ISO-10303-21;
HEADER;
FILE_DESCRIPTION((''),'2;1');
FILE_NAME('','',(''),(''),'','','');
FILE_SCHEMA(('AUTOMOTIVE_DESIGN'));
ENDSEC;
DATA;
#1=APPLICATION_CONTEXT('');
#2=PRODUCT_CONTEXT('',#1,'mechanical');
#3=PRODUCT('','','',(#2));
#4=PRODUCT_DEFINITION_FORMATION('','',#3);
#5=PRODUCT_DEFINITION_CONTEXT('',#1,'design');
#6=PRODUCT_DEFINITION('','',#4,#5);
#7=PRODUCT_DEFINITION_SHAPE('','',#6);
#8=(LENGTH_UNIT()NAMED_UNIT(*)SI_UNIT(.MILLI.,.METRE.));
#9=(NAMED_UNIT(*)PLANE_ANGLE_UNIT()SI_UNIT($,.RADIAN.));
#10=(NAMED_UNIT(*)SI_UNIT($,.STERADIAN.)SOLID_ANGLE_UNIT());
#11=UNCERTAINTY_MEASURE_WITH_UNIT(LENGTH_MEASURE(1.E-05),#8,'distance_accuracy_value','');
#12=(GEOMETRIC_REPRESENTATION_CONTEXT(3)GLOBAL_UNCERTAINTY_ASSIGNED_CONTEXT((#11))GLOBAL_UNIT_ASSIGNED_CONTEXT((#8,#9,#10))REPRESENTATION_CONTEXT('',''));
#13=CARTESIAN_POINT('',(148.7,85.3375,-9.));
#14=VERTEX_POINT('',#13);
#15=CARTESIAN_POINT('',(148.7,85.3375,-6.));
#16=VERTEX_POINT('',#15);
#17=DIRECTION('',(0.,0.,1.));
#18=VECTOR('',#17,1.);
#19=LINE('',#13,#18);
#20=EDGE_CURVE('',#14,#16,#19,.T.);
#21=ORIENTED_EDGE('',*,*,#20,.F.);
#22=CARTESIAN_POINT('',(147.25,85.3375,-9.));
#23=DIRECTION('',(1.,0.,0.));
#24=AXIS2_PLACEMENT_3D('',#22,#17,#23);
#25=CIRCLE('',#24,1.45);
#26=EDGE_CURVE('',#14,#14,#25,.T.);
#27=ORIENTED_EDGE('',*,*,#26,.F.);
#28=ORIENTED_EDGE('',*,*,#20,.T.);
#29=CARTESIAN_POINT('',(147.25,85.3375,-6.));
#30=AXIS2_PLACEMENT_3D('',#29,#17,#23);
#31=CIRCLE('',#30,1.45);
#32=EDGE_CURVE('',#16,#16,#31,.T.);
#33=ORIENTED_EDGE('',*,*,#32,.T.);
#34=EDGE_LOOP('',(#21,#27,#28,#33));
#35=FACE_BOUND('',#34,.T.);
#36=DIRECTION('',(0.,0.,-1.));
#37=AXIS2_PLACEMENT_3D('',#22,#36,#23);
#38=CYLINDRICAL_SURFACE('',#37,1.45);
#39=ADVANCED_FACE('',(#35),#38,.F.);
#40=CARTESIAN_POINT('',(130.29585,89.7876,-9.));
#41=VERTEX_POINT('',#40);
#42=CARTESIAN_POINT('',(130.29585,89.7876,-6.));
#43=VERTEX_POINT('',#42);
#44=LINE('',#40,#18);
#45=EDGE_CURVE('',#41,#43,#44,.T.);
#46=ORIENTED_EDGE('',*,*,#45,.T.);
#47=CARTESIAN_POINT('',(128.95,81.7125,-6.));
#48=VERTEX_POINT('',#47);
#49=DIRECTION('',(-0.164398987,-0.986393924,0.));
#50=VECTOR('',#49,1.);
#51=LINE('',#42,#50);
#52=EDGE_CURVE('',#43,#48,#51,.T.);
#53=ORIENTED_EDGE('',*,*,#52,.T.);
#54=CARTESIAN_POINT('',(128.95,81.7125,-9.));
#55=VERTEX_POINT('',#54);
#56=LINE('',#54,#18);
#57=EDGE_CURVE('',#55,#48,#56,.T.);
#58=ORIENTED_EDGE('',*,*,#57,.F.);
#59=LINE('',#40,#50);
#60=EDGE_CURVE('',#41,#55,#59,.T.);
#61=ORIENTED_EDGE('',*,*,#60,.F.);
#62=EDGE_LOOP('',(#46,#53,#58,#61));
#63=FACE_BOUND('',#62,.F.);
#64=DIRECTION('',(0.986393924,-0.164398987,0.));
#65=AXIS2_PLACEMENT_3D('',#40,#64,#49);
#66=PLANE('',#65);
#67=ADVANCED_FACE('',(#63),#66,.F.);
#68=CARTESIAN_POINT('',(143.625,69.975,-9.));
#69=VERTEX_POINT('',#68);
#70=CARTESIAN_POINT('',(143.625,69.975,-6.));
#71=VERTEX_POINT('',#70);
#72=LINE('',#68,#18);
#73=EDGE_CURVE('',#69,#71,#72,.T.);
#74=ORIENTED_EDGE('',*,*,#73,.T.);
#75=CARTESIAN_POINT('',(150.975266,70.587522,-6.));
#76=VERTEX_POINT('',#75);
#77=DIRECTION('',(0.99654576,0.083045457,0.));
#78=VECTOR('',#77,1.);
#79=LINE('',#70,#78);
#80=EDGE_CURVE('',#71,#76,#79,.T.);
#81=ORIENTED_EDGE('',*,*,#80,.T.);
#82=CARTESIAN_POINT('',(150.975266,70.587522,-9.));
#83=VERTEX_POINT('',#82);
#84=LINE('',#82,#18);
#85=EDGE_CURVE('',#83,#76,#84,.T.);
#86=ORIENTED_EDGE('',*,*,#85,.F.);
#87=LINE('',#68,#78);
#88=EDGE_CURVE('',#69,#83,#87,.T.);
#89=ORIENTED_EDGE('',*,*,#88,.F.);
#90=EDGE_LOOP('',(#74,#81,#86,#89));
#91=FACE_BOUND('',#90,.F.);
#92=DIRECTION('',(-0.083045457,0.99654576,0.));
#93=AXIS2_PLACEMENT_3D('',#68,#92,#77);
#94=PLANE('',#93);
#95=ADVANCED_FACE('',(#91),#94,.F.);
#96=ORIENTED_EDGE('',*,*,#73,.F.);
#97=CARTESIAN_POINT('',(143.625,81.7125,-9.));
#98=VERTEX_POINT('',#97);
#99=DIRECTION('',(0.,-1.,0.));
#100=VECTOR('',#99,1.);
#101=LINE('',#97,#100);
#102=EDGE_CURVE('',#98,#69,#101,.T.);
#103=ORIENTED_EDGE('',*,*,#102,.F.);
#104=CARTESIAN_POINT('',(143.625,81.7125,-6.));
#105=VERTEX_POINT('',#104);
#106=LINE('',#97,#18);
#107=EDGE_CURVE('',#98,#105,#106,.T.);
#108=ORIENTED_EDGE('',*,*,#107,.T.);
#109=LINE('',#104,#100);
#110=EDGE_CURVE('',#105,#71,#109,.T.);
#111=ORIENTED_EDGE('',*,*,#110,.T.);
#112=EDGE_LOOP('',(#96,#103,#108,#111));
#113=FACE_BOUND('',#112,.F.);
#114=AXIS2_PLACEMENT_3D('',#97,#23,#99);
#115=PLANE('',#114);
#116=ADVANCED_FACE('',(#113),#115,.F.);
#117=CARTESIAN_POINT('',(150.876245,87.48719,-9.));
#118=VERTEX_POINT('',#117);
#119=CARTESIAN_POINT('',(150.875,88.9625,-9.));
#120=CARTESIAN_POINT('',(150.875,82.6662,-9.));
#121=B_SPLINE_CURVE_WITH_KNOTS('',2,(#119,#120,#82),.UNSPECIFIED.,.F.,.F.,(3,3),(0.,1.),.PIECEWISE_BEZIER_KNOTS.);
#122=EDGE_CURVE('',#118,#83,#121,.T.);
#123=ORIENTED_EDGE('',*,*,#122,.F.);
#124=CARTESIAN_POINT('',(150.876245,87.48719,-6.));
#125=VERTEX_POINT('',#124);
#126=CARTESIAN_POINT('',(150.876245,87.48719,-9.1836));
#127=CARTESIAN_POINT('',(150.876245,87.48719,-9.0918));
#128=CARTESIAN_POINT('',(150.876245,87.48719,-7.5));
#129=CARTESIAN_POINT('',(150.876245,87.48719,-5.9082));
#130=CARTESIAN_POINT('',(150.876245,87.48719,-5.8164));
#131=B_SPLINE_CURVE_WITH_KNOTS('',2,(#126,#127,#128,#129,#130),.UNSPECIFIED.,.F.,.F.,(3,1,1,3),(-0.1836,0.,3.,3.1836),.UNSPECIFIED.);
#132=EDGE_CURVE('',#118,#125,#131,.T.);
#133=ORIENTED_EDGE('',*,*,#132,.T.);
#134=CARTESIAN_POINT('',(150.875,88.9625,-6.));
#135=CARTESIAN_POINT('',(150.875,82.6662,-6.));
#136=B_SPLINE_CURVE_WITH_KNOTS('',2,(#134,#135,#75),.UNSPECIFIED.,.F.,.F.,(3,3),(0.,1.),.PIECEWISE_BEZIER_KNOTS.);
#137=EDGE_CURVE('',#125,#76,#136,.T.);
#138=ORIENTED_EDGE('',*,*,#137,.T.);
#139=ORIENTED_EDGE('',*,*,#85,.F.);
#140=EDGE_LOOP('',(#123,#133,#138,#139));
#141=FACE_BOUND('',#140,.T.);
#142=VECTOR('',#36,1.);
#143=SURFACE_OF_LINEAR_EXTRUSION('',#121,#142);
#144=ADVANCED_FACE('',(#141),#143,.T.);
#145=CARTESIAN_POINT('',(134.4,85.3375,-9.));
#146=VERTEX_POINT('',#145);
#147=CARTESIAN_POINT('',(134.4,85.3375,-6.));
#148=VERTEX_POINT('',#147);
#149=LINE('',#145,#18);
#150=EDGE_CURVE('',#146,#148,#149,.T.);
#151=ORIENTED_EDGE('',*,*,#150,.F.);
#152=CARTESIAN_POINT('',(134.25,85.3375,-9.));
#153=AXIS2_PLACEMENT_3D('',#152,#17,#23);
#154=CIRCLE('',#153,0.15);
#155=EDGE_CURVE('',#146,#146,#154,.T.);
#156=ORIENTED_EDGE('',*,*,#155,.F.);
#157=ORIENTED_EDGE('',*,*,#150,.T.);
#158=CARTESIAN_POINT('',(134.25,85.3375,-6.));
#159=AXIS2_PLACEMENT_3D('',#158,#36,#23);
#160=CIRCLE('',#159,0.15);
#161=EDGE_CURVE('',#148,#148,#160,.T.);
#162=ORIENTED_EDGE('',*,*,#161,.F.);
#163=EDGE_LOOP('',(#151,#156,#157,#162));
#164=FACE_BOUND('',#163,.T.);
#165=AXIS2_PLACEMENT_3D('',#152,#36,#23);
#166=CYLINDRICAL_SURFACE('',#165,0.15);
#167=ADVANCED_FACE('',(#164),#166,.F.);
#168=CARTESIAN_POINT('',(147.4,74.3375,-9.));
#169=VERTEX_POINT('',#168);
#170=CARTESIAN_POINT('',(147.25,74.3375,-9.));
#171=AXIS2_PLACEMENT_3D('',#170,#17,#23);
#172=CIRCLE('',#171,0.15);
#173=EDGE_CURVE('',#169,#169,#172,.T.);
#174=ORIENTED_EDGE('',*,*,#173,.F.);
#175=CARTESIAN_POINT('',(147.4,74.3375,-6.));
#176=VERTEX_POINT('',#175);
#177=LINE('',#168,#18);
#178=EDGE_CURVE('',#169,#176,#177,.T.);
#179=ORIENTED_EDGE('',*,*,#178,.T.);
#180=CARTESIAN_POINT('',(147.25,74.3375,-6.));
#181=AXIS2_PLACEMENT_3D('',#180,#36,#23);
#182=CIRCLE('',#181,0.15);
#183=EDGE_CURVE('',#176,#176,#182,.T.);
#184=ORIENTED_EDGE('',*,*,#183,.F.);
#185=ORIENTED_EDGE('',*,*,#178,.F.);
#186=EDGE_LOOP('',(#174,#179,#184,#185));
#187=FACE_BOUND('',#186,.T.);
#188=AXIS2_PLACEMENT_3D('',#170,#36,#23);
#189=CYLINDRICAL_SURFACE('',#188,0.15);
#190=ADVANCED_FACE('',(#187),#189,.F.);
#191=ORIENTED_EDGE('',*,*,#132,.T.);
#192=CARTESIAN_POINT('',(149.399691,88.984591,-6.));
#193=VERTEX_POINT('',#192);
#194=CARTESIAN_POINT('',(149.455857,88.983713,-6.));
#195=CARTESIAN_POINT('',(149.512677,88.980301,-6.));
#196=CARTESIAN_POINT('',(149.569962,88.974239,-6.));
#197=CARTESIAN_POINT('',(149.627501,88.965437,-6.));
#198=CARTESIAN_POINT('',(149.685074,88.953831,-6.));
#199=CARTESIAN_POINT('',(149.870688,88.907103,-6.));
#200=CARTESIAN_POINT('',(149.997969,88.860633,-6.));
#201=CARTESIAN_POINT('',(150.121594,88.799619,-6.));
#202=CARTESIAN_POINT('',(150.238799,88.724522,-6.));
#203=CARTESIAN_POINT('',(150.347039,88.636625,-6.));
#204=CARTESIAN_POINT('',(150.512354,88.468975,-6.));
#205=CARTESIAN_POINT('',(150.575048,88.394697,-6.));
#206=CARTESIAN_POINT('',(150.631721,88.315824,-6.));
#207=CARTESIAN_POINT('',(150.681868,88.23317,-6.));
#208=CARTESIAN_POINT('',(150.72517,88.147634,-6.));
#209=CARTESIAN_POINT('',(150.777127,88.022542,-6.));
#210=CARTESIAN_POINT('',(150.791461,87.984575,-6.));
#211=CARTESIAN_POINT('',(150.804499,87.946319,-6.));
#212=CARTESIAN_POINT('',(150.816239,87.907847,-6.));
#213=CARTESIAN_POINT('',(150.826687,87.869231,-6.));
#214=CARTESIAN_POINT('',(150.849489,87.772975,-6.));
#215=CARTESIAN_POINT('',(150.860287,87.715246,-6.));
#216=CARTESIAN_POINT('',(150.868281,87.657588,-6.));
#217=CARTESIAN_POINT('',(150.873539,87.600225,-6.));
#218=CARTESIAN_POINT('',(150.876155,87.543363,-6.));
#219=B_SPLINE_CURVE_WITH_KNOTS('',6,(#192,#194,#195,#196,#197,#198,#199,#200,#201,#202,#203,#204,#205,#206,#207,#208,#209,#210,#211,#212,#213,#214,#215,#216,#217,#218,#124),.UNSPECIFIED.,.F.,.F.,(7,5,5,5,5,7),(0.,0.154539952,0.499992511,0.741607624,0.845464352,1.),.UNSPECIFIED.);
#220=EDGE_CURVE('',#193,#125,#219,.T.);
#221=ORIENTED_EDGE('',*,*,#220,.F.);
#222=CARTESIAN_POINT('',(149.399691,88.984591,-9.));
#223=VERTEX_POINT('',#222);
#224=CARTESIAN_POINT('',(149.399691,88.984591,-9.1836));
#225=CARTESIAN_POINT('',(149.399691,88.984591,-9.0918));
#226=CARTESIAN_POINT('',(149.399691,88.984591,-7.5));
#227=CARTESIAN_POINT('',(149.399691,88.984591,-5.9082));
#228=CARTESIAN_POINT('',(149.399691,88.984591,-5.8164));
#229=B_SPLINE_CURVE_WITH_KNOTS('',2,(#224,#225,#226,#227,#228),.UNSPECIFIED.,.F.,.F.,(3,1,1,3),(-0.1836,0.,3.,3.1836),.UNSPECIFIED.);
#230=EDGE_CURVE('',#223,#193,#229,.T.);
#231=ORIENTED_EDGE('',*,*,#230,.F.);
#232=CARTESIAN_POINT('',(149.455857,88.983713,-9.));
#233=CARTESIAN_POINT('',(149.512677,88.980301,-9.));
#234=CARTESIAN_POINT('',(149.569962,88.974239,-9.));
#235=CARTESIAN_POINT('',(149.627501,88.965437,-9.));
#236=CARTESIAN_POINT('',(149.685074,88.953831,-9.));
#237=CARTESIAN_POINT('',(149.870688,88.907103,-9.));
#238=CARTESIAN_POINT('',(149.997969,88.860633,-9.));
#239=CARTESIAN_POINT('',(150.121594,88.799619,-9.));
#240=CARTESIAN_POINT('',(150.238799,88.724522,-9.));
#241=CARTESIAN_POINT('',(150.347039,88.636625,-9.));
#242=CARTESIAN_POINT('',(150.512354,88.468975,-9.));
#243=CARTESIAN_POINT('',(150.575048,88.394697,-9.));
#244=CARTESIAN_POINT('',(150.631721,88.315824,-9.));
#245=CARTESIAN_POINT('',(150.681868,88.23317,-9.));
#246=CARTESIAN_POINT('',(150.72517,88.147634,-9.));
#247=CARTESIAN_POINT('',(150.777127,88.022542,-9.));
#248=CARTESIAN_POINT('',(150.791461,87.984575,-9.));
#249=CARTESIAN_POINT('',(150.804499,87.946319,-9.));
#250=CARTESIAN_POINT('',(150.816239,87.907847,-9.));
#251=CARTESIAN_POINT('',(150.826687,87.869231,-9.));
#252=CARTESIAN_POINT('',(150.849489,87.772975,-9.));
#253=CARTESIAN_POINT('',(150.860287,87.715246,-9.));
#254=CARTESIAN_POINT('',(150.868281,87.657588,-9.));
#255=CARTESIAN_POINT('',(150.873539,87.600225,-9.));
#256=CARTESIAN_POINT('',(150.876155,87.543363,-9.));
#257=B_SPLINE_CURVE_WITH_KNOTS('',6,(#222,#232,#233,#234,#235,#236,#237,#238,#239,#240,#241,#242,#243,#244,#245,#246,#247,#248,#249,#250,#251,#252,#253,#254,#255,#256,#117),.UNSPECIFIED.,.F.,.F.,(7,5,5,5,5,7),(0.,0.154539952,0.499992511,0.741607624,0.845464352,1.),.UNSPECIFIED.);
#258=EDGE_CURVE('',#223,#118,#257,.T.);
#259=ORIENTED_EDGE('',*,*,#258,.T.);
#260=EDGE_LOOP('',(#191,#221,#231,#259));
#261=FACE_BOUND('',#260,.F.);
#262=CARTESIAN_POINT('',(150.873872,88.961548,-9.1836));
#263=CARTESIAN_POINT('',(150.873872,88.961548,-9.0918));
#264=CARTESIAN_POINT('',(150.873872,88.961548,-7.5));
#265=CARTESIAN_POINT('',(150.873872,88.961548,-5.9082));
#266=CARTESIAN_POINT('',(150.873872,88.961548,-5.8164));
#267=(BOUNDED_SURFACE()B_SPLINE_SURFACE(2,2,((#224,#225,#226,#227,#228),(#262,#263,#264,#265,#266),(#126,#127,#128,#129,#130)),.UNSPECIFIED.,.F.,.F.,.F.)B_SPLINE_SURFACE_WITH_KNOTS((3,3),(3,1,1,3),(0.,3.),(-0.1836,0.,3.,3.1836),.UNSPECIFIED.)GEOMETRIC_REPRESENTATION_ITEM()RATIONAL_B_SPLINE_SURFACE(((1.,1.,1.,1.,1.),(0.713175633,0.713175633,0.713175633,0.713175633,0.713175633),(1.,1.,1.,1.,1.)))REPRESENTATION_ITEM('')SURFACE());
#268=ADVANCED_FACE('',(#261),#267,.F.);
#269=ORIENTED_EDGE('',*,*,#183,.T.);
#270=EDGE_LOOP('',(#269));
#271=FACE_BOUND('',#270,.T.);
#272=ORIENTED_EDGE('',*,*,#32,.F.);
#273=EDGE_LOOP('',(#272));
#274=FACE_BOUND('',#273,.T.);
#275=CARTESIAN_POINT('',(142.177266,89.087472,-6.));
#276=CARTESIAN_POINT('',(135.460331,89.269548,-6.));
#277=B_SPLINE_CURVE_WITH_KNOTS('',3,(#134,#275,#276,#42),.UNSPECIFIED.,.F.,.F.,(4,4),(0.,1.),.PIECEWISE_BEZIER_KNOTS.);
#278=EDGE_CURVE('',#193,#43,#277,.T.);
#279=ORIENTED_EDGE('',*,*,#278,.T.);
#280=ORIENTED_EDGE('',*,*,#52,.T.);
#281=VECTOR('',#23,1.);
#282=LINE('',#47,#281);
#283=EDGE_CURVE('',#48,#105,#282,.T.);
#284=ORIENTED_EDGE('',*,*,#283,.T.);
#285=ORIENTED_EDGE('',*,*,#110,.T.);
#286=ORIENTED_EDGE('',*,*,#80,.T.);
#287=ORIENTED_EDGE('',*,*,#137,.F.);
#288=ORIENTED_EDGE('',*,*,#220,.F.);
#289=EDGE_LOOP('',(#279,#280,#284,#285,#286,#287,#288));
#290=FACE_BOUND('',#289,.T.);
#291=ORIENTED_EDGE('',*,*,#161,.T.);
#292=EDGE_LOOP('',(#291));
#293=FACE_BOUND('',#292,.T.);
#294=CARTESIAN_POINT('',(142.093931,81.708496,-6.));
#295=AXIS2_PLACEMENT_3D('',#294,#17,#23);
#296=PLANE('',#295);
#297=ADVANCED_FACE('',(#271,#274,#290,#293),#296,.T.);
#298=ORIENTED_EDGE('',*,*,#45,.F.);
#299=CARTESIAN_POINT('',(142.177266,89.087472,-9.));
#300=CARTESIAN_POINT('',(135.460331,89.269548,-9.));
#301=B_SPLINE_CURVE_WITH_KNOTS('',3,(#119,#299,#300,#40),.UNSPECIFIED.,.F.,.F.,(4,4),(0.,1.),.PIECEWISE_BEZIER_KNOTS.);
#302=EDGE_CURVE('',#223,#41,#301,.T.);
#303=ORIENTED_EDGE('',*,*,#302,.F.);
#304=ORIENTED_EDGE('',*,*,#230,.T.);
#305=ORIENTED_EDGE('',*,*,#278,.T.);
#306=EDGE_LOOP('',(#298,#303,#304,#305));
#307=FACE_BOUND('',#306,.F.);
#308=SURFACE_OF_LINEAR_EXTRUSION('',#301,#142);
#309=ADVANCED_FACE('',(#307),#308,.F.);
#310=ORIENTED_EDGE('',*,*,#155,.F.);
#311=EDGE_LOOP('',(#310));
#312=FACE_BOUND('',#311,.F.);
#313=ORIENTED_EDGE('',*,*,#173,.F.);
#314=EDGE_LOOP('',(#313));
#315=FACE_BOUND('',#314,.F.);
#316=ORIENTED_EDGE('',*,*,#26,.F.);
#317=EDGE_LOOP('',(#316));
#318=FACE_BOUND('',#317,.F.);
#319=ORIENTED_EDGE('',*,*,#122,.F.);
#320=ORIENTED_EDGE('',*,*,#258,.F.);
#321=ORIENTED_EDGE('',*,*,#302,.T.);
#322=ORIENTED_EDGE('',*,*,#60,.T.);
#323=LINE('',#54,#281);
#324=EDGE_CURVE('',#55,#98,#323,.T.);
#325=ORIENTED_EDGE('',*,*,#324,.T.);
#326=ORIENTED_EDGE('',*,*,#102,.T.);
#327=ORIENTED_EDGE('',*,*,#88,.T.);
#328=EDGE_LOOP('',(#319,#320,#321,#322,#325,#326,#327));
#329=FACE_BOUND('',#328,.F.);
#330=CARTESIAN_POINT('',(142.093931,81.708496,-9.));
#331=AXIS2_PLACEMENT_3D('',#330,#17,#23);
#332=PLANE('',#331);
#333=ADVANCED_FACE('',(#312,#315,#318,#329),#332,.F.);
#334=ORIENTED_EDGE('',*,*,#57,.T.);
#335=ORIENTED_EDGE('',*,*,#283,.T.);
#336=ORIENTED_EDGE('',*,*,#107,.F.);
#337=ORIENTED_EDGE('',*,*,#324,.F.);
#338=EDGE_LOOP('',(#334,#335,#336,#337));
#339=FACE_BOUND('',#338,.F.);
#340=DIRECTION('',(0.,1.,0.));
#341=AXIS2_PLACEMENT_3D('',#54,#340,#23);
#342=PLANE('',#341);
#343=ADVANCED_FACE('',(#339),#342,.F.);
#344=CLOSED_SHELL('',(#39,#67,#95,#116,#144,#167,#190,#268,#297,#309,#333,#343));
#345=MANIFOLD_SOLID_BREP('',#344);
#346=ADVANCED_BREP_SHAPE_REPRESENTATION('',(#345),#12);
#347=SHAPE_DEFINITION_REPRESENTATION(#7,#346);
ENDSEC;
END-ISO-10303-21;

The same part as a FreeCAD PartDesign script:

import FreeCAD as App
import Part
import Sketcher

V = App.Vector


def edges_at(feature, points):
    """Names of the edges that pass closest to the given points."""
    edges = feature.Shape.Edges
    near = lambda p: min(range(len(edges)), key=lambda i: edges[i].distToShape(Part.Vertex(*p))[0])
    return sorted({f"Edge{near(p) + 1}" for p in points})

doc = App.newDocument("Part")
body = doc.addObject("PartDesign::Body", "Body")

# Sketch on XY plane
sketch1 = body.newObject("Sketcher::SketchObject", "Sketch")
sketch1.AttachmentSupport = (doc.getObject("XY_Plane"), [""])
sketch1.MapMode = "FlatFace"
sketch1.addGeometry(Part.BSplineCurve([V(150.875, 88.9625, 0), V(142.177266, 89.087472, 0), V(135.460331, 89.269548, 0), V(130.29585, 89.7876, 0)], [4, 4], [0, 1], False, 3, [1, 1, 1, 1], False), False)
sketch1.addGeometry(Part.LineSegment(V(130.29585, 89.7876, 0), V(128.95, 81.7125, 0)), False)
sketch1.addGeometry(Part.LineSegment(V(128.95, 81.7125, 0), V(143.625, 81.7125, 0)), False)
sketch1.addGeometry(Part.LineSegment(V(143.625, 81.7125, 0), V(143.625, 69.975, 0)), False)
sketch1.addGeometry(Part.LineSegment(V(143.625, 69.975, 0), V(150.975266, 70.587522, 0)), False)
sketch1.addGeometry(Part.BSplineCurve([V(150.875, 88.9625, 0), V(150.875, 82.6662, 0), V(150.975266, 70.587522, 0)], [3, 3], [0, 1], False, 2, [1, 1, 1], False), False)
sketch1.addGeometry(Part.Circle(V(147.25, 85.3375, 0), V(0, 0, 1), 1.45), False)
sketch1.addConstraint(Sketcher.Constraint("Block", 0))
sketch1.addConstraint(Sketcher.Constraint("Block", 5))
sketch1.addConstraint(Sketcher.Constraint("Coincident", 0, 2, 1, 1))
sketch1.addConstraint(Sketcher.Constraint("Coincident", 1, 2, 2, 1))
sketch1.addConstraint(Sketcher.Constraint("Coincident", 2, 2, 3, 1))
sketch1.addConstraint(Sketcher.Constraint("Coincident", 3, 2, 4, 1))
sketch1.addConstraint(Sketcher.Constraint("Coincident", 4, 2, 5, 2))
sketch1.addConstraint(Sketcher.Constraint("Horizontal", 2))
sketch1.addConstraint(Sketcher.Constraint("Vertical", 3))
sketch1.addConstraint(Sketcher.Constraint("Diameter", 6, 2.9))
sketch1.addConstraint(Sketcher.Constraint("DistanceX", 1, 2, 6, 3, 18.3))
sketch1.addConstraint(Sketcher.Constraint("DistanceX", 2, 1, 2, 2, 14.675))
sketch1.addConstraint(Sketcher.Constraint("DistanceX", -1, 1, 6, 3, 147.25))
sketch1.addConstraint(Sketcher.Constraint("DistanceY", 3, 2, 3, 1, 11.7375))
sketch1.addConstraint(Sketcher.Constraint("DistanceY", -1, 1, 3, 2, 69.975))
sketch1.addConstraint(Sketcher.Constraint("DistanceY", 1, 2, 6, 3, 3.625))
pad1 = body.newObject("PartDesign::Pad", "Pad")
pad1.Profile = sketch1
pad1.Length = 3

# Sketch on XY plane
sketch2 = body.newObject("Sketcher::SketchObject", "Sketch001")
sketch2.AttachmentSupport = (doc.getObject("XY_Plane"), [""])
sketch2.MapMode = "FlatFace"
sketch2.addGeometry(Part.Circle(V(134.25, 85.34, 0), V(0, 0, 1), 0.15), False)
sketch2.addGeometry(Part.Circle(V(147.25, 74.34, 0), V(0, 0, 1), 0.15), False)
sketch2.addConstraint(Sketcher.Constraint("Equal", 0, 1))
sketch2.addConstraint(Sketcher.Constraint("Diameter", 0, 0.3))
sketch2.addConstraint(Sketcher.Constraint("DistanceX", 0, 3, 1, 3, 13.0))
sketch2.addConstraint(Sketcher.Constraint("DistanceY", 1, 3, 0, 3, 11.0))
sketch2.addConstraint(Sketcher.Constraint("DistanceX", -1, 1, 0, 3, 134.25))
sketch2.addConstraint(Sketcher.Constraint("DistanceY", -1, 1, 0, 3, 85.3375))
pocket1 = body.newObject("PartDesign::Pocket", "Pocket")
pocket1.Profile = sketch2
pocket1.Length = 23
pocket1.Reversed = True
doc.recompute()

fillet = body.newObject("PartDesign::Fillet", "Fillet")
fillet.Base = (pocket1, edges_at(pocket1, [(150.875, 88.963, 1.5)]))
fillet.Radius = 1.5
body2 = doc.addObject("PartDesign::Body", "Body001")
doc.recompute()

body.Placement = App.Placement(V(0, 0, -9), App.Rotation(V(0, 0, 1), 0))
boolean = body2.newObject("PartDesign::Boolean", "Boolean")
boolean.Type = "Fuse"
boolean.addObjects([body])

doc.recompute()
